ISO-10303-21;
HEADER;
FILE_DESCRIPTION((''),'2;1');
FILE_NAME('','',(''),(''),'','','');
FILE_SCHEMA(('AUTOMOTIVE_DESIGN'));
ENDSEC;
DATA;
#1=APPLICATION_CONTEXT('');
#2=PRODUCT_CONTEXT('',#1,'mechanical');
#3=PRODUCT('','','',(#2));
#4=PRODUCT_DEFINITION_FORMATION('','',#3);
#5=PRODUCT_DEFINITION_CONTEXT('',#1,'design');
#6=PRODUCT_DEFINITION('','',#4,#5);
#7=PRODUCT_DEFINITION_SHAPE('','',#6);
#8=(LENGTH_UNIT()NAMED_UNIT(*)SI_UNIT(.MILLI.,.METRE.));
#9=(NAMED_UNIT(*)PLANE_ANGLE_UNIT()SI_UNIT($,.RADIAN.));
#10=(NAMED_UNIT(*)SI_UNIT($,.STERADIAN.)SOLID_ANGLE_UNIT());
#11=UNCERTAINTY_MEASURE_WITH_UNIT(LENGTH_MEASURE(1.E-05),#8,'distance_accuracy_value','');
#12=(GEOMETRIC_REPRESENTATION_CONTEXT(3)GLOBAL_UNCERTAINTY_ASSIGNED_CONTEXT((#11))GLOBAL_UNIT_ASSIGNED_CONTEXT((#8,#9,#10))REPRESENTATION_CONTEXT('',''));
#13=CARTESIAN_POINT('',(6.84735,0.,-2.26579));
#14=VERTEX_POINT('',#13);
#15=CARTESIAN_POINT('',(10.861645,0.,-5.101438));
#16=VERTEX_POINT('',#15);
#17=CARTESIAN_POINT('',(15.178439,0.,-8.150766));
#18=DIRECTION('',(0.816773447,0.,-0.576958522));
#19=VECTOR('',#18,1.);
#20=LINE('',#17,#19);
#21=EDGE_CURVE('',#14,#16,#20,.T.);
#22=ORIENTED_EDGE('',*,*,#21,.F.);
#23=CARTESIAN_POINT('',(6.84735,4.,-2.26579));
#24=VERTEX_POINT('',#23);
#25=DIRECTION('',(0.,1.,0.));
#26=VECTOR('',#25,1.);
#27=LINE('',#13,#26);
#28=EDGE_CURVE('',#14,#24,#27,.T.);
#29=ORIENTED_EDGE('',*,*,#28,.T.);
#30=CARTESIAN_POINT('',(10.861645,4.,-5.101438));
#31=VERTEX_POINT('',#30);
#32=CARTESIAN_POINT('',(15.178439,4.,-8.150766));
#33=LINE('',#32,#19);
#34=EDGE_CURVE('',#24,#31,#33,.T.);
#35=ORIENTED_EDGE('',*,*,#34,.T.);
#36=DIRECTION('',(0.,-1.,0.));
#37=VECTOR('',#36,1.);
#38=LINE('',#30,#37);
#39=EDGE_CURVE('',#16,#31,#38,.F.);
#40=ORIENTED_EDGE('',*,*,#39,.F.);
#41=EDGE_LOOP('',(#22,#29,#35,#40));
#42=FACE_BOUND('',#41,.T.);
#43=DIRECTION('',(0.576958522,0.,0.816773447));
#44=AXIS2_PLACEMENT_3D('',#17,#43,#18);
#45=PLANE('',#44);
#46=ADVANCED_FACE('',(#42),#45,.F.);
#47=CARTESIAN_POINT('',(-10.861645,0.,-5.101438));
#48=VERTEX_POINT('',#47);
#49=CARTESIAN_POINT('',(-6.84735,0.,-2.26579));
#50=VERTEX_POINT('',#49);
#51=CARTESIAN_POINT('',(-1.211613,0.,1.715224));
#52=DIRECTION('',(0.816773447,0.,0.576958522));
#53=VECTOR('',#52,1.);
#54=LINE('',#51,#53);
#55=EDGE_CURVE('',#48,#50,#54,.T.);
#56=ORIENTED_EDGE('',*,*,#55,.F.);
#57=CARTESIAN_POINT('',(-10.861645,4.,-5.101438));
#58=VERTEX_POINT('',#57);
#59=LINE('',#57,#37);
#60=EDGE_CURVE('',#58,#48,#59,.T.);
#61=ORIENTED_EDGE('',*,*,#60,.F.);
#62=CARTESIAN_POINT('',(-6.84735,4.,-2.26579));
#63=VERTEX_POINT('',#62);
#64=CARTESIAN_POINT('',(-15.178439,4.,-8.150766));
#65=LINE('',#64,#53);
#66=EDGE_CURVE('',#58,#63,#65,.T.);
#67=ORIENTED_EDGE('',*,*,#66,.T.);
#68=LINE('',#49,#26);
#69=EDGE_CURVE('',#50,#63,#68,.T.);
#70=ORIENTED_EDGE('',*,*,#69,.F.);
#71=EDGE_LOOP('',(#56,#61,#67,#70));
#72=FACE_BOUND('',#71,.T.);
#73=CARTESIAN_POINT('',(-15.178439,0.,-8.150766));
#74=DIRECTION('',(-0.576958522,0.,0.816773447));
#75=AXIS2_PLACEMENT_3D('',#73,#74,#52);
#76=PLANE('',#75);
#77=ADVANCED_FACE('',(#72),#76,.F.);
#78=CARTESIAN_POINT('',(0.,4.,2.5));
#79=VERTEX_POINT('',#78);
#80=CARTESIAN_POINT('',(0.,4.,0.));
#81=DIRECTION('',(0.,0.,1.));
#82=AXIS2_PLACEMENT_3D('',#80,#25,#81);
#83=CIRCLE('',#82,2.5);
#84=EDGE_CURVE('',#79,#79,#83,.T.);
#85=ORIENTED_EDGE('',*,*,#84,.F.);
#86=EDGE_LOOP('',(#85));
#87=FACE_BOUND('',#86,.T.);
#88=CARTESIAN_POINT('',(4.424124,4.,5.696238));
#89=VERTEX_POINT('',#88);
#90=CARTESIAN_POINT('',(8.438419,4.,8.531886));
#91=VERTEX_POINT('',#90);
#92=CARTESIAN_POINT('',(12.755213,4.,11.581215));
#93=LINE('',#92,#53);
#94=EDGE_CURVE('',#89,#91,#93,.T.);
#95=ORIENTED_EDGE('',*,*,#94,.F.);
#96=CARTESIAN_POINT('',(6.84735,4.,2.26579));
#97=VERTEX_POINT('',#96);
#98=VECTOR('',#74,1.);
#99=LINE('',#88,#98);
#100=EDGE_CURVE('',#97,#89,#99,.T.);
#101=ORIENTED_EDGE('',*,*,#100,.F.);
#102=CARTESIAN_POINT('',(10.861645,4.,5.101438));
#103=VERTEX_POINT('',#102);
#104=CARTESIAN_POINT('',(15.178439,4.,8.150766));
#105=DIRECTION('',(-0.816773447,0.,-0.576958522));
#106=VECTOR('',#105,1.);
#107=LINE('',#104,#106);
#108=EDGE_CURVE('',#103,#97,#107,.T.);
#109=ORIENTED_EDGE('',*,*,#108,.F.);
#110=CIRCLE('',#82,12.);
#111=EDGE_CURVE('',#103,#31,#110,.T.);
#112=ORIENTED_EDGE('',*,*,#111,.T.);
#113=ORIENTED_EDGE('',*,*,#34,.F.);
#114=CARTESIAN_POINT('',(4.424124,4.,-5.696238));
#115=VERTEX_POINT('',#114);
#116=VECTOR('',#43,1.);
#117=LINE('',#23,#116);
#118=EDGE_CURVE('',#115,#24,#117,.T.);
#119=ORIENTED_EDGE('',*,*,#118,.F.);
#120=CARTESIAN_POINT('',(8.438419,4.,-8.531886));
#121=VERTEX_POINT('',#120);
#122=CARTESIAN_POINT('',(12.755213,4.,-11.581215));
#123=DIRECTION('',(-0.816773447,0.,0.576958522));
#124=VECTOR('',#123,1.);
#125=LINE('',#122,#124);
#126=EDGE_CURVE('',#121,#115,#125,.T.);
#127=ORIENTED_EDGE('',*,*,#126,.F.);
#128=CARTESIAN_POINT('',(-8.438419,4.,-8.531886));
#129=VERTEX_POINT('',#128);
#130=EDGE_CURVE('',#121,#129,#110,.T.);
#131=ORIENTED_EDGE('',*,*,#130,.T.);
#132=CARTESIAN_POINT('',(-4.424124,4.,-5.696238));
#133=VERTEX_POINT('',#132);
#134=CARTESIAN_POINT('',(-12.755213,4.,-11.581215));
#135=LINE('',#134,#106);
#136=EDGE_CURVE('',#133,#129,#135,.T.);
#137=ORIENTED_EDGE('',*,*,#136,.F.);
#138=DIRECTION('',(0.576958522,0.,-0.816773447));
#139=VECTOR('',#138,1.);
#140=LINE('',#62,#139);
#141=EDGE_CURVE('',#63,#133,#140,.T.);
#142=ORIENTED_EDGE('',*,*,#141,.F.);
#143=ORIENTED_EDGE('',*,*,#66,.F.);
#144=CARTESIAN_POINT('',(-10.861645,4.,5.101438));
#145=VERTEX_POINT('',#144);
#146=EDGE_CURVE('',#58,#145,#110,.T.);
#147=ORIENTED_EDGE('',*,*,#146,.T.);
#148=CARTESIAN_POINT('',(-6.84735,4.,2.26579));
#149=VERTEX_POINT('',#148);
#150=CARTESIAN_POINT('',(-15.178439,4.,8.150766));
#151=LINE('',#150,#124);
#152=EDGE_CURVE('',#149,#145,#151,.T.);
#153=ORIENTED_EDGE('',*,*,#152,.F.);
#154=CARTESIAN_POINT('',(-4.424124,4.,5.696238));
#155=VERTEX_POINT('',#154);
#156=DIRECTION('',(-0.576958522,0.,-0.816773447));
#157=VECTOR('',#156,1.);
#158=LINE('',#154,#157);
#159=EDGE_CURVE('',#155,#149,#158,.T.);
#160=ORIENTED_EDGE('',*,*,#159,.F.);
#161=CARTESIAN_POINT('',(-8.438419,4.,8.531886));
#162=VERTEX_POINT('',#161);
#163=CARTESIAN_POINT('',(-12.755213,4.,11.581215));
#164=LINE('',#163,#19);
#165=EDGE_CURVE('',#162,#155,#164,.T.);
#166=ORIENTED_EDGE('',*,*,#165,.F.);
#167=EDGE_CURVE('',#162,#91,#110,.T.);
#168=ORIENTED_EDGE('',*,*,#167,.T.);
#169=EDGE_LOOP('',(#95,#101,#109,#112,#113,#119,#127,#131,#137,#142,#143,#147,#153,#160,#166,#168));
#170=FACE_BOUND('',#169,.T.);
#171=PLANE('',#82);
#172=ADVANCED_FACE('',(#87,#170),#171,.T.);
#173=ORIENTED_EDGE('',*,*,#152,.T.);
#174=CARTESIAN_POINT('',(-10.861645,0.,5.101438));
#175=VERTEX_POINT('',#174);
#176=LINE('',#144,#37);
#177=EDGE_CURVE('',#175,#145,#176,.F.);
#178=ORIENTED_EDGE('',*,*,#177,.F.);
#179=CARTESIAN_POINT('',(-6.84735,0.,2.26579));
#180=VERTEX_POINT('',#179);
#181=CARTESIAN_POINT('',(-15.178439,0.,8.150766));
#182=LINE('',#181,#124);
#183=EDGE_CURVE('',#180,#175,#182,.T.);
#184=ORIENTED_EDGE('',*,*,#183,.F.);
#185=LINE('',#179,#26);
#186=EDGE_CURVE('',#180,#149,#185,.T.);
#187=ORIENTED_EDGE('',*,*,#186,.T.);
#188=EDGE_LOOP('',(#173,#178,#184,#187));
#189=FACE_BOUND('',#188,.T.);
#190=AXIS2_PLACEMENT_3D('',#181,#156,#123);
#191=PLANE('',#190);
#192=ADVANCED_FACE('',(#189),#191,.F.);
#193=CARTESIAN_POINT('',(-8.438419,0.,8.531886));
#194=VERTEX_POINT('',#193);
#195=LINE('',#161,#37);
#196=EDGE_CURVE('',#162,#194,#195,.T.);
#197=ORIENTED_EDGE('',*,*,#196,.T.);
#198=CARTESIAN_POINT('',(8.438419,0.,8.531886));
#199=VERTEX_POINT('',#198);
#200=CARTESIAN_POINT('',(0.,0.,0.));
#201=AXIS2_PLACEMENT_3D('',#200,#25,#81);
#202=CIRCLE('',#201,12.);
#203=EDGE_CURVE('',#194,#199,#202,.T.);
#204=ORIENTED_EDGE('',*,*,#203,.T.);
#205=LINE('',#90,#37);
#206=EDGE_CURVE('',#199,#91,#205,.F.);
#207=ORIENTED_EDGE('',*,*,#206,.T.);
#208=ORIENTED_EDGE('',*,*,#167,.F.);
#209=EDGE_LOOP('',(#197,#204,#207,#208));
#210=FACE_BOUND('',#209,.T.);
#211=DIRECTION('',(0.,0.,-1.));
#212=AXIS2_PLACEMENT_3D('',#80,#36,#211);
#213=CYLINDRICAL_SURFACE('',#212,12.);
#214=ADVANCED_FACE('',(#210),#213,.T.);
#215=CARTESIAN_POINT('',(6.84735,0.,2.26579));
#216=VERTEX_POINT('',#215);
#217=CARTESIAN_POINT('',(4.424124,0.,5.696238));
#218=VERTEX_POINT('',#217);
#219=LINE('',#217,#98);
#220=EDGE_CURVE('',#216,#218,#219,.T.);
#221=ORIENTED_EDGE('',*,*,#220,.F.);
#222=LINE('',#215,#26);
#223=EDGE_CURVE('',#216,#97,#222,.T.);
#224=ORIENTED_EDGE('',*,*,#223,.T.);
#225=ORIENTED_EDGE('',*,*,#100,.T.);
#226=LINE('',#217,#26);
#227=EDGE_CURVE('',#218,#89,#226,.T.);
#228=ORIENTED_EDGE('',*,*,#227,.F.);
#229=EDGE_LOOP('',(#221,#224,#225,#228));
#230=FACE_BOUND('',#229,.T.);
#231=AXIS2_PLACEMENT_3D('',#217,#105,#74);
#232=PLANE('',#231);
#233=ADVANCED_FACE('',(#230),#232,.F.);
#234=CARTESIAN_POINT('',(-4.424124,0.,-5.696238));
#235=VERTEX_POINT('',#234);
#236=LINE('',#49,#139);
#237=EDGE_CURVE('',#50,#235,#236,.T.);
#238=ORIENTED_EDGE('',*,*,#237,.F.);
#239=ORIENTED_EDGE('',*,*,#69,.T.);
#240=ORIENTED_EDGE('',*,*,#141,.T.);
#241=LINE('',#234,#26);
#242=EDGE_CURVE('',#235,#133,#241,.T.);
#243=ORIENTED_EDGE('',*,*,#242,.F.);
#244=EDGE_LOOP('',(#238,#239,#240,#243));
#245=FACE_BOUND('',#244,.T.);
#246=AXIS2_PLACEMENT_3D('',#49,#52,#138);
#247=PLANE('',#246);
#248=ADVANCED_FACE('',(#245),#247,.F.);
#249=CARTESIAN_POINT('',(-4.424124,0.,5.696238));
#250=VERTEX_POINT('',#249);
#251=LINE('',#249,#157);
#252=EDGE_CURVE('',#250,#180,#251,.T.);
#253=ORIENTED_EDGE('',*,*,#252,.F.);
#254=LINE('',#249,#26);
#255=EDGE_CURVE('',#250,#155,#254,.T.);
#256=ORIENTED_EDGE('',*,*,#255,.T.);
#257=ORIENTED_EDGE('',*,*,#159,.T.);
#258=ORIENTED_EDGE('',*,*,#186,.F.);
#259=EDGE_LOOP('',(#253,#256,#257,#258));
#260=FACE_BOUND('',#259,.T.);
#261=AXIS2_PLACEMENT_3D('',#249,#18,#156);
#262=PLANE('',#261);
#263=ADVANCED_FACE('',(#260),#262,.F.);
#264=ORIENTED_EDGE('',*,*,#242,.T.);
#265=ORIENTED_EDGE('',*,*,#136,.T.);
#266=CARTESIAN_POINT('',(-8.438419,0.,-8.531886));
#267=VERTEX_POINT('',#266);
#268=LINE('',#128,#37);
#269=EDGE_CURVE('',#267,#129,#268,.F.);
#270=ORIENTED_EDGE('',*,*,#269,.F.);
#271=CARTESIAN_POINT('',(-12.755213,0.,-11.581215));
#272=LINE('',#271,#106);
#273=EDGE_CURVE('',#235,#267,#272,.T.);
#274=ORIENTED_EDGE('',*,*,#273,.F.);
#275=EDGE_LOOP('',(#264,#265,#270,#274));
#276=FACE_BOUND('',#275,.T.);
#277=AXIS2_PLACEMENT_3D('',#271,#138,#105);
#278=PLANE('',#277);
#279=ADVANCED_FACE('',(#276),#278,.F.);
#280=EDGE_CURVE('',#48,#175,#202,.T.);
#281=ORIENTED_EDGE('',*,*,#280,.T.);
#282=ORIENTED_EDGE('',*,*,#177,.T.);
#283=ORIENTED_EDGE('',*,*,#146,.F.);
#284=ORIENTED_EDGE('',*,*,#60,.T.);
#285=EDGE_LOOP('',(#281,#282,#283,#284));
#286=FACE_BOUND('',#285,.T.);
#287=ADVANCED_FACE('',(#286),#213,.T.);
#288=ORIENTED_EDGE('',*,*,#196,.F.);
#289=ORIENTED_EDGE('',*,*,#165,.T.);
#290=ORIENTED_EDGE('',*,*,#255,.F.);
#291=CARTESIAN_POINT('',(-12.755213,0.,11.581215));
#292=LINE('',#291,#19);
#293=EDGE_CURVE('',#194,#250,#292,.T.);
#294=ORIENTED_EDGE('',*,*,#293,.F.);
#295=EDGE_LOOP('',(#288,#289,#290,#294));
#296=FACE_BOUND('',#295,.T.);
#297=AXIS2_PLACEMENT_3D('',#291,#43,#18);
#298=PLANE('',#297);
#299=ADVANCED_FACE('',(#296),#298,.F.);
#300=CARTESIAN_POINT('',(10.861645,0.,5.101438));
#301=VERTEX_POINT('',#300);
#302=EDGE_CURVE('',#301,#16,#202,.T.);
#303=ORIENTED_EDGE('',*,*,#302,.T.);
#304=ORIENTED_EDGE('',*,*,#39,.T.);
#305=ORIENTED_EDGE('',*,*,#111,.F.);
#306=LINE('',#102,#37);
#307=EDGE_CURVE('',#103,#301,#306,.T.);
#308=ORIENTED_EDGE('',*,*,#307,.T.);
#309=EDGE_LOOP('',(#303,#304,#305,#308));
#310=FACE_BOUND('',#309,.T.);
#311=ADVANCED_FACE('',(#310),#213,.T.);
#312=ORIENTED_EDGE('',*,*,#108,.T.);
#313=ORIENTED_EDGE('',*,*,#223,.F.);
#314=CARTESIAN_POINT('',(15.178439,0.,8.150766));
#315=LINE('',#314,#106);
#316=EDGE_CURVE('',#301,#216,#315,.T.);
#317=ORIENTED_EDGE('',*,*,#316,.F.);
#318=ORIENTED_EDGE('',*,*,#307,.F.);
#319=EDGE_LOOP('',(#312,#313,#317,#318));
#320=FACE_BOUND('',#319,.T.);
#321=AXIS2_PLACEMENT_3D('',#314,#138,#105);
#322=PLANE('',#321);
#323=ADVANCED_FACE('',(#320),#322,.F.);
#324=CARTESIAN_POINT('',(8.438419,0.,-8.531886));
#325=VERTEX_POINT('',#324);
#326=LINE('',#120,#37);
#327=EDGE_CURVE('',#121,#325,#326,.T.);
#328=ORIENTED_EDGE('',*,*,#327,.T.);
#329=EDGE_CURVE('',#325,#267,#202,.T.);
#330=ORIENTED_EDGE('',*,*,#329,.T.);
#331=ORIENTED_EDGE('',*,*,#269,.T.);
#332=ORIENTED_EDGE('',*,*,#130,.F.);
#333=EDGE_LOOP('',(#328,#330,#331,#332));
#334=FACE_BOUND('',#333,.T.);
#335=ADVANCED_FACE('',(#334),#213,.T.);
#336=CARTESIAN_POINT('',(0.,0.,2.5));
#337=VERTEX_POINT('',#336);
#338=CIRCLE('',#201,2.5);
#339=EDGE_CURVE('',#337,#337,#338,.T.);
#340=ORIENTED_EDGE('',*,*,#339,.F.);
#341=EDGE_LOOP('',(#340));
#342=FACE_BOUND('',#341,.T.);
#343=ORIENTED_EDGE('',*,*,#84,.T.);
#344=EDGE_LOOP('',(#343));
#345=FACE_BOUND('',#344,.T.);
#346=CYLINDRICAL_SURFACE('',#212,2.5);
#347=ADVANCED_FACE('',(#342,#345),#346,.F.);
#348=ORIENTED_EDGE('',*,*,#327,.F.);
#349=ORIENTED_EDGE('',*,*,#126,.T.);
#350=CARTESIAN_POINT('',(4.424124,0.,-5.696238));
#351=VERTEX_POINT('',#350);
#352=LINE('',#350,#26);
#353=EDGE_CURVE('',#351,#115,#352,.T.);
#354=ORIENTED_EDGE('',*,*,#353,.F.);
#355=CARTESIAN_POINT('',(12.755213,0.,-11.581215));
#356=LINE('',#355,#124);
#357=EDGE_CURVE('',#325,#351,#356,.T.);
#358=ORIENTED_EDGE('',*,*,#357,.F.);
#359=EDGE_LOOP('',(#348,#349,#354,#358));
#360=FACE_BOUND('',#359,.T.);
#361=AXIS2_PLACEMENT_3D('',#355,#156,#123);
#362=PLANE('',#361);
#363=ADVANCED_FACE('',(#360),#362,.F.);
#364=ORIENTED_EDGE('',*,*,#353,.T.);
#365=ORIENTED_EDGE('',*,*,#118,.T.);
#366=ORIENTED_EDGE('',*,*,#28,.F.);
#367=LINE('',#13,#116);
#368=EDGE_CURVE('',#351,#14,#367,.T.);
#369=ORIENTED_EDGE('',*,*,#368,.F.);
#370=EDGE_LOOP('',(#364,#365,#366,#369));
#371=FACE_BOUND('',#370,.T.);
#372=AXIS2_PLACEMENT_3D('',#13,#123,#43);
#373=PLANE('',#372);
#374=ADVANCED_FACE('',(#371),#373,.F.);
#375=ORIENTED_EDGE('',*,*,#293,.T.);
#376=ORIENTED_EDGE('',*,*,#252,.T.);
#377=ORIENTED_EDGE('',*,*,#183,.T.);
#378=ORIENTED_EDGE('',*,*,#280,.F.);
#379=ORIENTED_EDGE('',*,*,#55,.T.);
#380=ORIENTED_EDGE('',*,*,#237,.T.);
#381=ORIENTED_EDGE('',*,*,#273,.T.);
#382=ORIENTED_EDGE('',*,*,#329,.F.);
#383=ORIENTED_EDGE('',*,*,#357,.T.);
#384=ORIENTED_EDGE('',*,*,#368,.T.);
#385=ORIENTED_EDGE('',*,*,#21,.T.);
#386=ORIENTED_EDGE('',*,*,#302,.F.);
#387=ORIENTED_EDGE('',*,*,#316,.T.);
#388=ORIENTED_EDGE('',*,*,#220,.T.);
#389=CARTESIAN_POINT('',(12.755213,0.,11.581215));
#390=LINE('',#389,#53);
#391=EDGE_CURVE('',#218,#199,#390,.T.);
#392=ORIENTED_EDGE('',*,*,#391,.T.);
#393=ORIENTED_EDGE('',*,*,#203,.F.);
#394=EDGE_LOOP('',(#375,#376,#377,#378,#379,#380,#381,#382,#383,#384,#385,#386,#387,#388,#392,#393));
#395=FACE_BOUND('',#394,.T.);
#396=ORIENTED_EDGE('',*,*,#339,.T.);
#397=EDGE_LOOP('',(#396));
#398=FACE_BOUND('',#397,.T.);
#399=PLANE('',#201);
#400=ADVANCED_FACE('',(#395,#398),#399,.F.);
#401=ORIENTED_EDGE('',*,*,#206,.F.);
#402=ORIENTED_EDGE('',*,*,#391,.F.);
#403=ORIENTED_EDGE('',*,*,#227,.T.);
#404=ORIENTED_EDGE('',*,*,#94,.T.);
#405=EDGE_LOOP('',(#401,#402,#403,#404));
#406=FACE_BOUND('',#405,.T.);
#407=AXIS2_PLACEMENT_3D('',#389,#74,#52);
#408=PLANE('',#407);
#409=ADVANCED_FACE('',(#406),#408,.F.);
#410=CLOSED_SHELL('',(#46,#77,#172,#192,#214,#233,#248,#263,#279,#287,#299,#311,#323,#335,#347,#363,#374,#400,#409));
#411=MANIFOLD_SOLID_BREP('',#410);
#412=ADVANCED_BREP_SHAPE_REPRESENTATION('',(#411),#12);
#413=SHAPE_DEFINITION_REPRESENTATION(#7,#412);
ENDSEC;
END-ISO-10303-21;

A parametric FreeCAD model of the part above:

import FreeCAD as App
import Part
import Sketcher
from FreeCAD import Vector

doc = App.newDocument("Part")
body = doc.addObject("PartDesign::Body", "Body")

# Sketch on XZ plane
sketch1 = body.newObject("Sketcher::SketchObject", "Sketch")
sketch1.AttachmentSupport = (doc.getObject("XZ_Plane"), [""])
sketch1.MapMode = "FlatFace"
sketch1.addGeometry([
    Part.Circle(Vector(0, 0, 0), Vector(0, 0, 1), 12),
    Part.Circle(Vector(0, 0, 0), Vector(0, 0, 1), 2.5),
], False)
sketch1.addConstraint([
    Sketcher.Constraint("Coincident", 0, 3, -1, 1),
    Sketcher.Constraint("Coincident", 1, 3, -1, 1),
    Sketcher.Constraint("Diameter", 0, 24.0),
    Sketcher.Constraint("Diameter", 1, 5.0),
])
pad1 = body.newObject("PartDesign::Pad", "Pad")
pad1.Profile = sketch1
pad1.Length = 4
pad1.Reversed = True

# Sketch on XZ plane
sketch2 = body.newObject("Sketcher::SketchObject", "Sketch001")
sketch2.AttachmentSupport = (doc.getObject("XZ_Plane"), [""])
sketch2.MapMode = "FlatFace"
sketch2.AttachmentOffset = App.Placement(Vector(0, 0, -4), App.Rotation())
sketch2.addGeometry([
    Part.LineSegment(Vector(6.8, -2.3, 0), Vector(15.2, -8.2, 0)),  # 0
    Part.LineSegment(Vector(15.2, -8.2, 0), Vector(12.8, -11.6, 0)),  # 1
    Part.LineSegment(Vector(12.8, -11.6, 0), Vector(4.4, -5.7, 0)),  # 2
    Part.LineSegment(Vector(4.4, -5.7, 0), Vector(6.8, -2.3, 0)),  # 3
    Part.LineSegment(Vector(-4.4, 5.7, 0), Vector(-6.8, 2.3, 0)),  # 4
    Part.LineSegment(Vector(-6.8, 2.3, 0), Vector(-15.2, 8.2, 0)),  # 5
    Part.LineSegment(Vector(-15.2, 8.2, 0), Vector(-12.8, 11.6, 0)),  # 6
    Part.LineSegment(Vector(-12.8, 11.6, 0), Vector(-4.4, 5.7, 0)),  # 7
    Part.LineSegment(Vector(4.4, 5.7, 0), Vector(12.8, 11.6, 0)),  # 8
    Part.LineSegment(Vector(12.8, 11.6, 0), Vector(15.2, 8.2, 0)),  # 9
    Part.LineSegment(Vector(15.2, 8.2, 0), Vector(6.8, 2.3, 0)),  # 10
    Part.LineSegment(Vector(6.8, 2.3, 0), Vector(4.4, 5.7, 0)),  # 11
    Part.LineSegment(Vector(-6.8, -2.3, 0), Vector(-4.4, -5.7, 0)),  # 12
    Part.LineSegment(Vector(-4.4, -5.7, 0), Vector(-12.8, -11.6, 0)),  # 13
    Part.LineSegment(Vector(-12.8, -11.6, 0), Vector(-15.2, -8.2, 0)),  # 14
    Part.LineSegment(Vector(-15.2, -8.2, 0), Vector(-6.8, -2.3, 0)),  # 15
], False)
sketch2.addConstraint([
    Sketcher.Constraint("Coincident", 0, 2, 1, 1),
    Sketcher.Constraint("Coincident", 1, 2, 2, 1),
    Sketcher.Constraint("Coincident", 2, 2, 3, 1),
    Sketcher.Constraint("Coincident", 3, 2, 0, 1),
    Sketcher.Constraint("Coincident", 4, 2, 5, 1),
    Sketcher.Constraint("Coincident", 5, 2, 6, 1),
    Sketcher.Constraint("Coincident", 6, 2, 7, 1),
    Sketcher.Constraint("Coincident", 7, 2, 4, 1),
    Sketcher.Constraint("Coincident", 8, 2, 9, 1),
    Sketcher.Constraint("Coincident", 9, 2, 10, 1),
    Sketcher.Constraint("Coincident", 10, 2, 11, 1),
    Sketcher.Constraint("Coincident", 11, 2, 8, 1),
    Sketcher.Constraint("Coincident", 12, 2, 13, 1),
    Sketcher.Constraint("Coincident", 13, 2, 14, 1),
    Sketcher.Constraint("Coincident", 14, 2, 15, 1),
    Sketcher.Constraint("Coincident", 15, 2, 12, 1),
    Sketcher.Constraint("Symmetric", 3, 2, 4, 2, -1, 1),
    Sketcher.Constraint("Symmetric", 0, 2, 5, 2, -1, 1),
    Sketcher.Constraint("Symmetric", 1, 2, 6, 2, -1, 1),
    Sketcher.Constraint("Symmetric", 2, 2, 7, 2, -1, 1),
    Sketcher.Constraint("Symmetric", 11, 2, 12, 2, -1, 1),
    Sketcher.Constraint("Symmetric", 8, 2, 13, 2, -1, 1),
    Sketcher.Constraint("Symmetric", 9, 2, 14, 2, -1, 1),
    Sketcher.Constraint("Symmetric", 10, 2, 15, 2, -1, 1),
    Sketcher.Constraint("Symmetric", 6, 2, 8, 2, -2),
    Sketcher.Constraint("Symmetric", 5, 2, 9, 2, -2),
    Sketcher.Constraint("Symmetric", 4, 2, 10, 2, -2),
    Sketcher.Constraint("Symmetric", 7, 2, 11, 2, -2),
    Sketcher.Constraint("Perpendicular", 0, 1),
    Sketcher.Constraint("Perpendicular", 1, 2),
    Sketcher.Constraint("Perpendicular", 2, 3),
    Sketcher.Constraint("Distance", 0, 10.2),
    Sketcher.Constraint("Distance", 1, 4.2),
    Sketcher.Constraint("DistanceX", 4, 2, 3, 2, 13.694699),
    Sketcher.Constraint("DistanceX", -1, 1, 0, 2, 15.178439),
    Sketcher.Constraint("DistanceY", 2, 2, -1, 1, 5.696238),
])
pocket1 = body.newObject("PartDesign::Pocket", "Pocket")
pocket1.Profile = sketch2
pocket1.Length = 4
pocket1.Reversed = True

doc.recompute()
